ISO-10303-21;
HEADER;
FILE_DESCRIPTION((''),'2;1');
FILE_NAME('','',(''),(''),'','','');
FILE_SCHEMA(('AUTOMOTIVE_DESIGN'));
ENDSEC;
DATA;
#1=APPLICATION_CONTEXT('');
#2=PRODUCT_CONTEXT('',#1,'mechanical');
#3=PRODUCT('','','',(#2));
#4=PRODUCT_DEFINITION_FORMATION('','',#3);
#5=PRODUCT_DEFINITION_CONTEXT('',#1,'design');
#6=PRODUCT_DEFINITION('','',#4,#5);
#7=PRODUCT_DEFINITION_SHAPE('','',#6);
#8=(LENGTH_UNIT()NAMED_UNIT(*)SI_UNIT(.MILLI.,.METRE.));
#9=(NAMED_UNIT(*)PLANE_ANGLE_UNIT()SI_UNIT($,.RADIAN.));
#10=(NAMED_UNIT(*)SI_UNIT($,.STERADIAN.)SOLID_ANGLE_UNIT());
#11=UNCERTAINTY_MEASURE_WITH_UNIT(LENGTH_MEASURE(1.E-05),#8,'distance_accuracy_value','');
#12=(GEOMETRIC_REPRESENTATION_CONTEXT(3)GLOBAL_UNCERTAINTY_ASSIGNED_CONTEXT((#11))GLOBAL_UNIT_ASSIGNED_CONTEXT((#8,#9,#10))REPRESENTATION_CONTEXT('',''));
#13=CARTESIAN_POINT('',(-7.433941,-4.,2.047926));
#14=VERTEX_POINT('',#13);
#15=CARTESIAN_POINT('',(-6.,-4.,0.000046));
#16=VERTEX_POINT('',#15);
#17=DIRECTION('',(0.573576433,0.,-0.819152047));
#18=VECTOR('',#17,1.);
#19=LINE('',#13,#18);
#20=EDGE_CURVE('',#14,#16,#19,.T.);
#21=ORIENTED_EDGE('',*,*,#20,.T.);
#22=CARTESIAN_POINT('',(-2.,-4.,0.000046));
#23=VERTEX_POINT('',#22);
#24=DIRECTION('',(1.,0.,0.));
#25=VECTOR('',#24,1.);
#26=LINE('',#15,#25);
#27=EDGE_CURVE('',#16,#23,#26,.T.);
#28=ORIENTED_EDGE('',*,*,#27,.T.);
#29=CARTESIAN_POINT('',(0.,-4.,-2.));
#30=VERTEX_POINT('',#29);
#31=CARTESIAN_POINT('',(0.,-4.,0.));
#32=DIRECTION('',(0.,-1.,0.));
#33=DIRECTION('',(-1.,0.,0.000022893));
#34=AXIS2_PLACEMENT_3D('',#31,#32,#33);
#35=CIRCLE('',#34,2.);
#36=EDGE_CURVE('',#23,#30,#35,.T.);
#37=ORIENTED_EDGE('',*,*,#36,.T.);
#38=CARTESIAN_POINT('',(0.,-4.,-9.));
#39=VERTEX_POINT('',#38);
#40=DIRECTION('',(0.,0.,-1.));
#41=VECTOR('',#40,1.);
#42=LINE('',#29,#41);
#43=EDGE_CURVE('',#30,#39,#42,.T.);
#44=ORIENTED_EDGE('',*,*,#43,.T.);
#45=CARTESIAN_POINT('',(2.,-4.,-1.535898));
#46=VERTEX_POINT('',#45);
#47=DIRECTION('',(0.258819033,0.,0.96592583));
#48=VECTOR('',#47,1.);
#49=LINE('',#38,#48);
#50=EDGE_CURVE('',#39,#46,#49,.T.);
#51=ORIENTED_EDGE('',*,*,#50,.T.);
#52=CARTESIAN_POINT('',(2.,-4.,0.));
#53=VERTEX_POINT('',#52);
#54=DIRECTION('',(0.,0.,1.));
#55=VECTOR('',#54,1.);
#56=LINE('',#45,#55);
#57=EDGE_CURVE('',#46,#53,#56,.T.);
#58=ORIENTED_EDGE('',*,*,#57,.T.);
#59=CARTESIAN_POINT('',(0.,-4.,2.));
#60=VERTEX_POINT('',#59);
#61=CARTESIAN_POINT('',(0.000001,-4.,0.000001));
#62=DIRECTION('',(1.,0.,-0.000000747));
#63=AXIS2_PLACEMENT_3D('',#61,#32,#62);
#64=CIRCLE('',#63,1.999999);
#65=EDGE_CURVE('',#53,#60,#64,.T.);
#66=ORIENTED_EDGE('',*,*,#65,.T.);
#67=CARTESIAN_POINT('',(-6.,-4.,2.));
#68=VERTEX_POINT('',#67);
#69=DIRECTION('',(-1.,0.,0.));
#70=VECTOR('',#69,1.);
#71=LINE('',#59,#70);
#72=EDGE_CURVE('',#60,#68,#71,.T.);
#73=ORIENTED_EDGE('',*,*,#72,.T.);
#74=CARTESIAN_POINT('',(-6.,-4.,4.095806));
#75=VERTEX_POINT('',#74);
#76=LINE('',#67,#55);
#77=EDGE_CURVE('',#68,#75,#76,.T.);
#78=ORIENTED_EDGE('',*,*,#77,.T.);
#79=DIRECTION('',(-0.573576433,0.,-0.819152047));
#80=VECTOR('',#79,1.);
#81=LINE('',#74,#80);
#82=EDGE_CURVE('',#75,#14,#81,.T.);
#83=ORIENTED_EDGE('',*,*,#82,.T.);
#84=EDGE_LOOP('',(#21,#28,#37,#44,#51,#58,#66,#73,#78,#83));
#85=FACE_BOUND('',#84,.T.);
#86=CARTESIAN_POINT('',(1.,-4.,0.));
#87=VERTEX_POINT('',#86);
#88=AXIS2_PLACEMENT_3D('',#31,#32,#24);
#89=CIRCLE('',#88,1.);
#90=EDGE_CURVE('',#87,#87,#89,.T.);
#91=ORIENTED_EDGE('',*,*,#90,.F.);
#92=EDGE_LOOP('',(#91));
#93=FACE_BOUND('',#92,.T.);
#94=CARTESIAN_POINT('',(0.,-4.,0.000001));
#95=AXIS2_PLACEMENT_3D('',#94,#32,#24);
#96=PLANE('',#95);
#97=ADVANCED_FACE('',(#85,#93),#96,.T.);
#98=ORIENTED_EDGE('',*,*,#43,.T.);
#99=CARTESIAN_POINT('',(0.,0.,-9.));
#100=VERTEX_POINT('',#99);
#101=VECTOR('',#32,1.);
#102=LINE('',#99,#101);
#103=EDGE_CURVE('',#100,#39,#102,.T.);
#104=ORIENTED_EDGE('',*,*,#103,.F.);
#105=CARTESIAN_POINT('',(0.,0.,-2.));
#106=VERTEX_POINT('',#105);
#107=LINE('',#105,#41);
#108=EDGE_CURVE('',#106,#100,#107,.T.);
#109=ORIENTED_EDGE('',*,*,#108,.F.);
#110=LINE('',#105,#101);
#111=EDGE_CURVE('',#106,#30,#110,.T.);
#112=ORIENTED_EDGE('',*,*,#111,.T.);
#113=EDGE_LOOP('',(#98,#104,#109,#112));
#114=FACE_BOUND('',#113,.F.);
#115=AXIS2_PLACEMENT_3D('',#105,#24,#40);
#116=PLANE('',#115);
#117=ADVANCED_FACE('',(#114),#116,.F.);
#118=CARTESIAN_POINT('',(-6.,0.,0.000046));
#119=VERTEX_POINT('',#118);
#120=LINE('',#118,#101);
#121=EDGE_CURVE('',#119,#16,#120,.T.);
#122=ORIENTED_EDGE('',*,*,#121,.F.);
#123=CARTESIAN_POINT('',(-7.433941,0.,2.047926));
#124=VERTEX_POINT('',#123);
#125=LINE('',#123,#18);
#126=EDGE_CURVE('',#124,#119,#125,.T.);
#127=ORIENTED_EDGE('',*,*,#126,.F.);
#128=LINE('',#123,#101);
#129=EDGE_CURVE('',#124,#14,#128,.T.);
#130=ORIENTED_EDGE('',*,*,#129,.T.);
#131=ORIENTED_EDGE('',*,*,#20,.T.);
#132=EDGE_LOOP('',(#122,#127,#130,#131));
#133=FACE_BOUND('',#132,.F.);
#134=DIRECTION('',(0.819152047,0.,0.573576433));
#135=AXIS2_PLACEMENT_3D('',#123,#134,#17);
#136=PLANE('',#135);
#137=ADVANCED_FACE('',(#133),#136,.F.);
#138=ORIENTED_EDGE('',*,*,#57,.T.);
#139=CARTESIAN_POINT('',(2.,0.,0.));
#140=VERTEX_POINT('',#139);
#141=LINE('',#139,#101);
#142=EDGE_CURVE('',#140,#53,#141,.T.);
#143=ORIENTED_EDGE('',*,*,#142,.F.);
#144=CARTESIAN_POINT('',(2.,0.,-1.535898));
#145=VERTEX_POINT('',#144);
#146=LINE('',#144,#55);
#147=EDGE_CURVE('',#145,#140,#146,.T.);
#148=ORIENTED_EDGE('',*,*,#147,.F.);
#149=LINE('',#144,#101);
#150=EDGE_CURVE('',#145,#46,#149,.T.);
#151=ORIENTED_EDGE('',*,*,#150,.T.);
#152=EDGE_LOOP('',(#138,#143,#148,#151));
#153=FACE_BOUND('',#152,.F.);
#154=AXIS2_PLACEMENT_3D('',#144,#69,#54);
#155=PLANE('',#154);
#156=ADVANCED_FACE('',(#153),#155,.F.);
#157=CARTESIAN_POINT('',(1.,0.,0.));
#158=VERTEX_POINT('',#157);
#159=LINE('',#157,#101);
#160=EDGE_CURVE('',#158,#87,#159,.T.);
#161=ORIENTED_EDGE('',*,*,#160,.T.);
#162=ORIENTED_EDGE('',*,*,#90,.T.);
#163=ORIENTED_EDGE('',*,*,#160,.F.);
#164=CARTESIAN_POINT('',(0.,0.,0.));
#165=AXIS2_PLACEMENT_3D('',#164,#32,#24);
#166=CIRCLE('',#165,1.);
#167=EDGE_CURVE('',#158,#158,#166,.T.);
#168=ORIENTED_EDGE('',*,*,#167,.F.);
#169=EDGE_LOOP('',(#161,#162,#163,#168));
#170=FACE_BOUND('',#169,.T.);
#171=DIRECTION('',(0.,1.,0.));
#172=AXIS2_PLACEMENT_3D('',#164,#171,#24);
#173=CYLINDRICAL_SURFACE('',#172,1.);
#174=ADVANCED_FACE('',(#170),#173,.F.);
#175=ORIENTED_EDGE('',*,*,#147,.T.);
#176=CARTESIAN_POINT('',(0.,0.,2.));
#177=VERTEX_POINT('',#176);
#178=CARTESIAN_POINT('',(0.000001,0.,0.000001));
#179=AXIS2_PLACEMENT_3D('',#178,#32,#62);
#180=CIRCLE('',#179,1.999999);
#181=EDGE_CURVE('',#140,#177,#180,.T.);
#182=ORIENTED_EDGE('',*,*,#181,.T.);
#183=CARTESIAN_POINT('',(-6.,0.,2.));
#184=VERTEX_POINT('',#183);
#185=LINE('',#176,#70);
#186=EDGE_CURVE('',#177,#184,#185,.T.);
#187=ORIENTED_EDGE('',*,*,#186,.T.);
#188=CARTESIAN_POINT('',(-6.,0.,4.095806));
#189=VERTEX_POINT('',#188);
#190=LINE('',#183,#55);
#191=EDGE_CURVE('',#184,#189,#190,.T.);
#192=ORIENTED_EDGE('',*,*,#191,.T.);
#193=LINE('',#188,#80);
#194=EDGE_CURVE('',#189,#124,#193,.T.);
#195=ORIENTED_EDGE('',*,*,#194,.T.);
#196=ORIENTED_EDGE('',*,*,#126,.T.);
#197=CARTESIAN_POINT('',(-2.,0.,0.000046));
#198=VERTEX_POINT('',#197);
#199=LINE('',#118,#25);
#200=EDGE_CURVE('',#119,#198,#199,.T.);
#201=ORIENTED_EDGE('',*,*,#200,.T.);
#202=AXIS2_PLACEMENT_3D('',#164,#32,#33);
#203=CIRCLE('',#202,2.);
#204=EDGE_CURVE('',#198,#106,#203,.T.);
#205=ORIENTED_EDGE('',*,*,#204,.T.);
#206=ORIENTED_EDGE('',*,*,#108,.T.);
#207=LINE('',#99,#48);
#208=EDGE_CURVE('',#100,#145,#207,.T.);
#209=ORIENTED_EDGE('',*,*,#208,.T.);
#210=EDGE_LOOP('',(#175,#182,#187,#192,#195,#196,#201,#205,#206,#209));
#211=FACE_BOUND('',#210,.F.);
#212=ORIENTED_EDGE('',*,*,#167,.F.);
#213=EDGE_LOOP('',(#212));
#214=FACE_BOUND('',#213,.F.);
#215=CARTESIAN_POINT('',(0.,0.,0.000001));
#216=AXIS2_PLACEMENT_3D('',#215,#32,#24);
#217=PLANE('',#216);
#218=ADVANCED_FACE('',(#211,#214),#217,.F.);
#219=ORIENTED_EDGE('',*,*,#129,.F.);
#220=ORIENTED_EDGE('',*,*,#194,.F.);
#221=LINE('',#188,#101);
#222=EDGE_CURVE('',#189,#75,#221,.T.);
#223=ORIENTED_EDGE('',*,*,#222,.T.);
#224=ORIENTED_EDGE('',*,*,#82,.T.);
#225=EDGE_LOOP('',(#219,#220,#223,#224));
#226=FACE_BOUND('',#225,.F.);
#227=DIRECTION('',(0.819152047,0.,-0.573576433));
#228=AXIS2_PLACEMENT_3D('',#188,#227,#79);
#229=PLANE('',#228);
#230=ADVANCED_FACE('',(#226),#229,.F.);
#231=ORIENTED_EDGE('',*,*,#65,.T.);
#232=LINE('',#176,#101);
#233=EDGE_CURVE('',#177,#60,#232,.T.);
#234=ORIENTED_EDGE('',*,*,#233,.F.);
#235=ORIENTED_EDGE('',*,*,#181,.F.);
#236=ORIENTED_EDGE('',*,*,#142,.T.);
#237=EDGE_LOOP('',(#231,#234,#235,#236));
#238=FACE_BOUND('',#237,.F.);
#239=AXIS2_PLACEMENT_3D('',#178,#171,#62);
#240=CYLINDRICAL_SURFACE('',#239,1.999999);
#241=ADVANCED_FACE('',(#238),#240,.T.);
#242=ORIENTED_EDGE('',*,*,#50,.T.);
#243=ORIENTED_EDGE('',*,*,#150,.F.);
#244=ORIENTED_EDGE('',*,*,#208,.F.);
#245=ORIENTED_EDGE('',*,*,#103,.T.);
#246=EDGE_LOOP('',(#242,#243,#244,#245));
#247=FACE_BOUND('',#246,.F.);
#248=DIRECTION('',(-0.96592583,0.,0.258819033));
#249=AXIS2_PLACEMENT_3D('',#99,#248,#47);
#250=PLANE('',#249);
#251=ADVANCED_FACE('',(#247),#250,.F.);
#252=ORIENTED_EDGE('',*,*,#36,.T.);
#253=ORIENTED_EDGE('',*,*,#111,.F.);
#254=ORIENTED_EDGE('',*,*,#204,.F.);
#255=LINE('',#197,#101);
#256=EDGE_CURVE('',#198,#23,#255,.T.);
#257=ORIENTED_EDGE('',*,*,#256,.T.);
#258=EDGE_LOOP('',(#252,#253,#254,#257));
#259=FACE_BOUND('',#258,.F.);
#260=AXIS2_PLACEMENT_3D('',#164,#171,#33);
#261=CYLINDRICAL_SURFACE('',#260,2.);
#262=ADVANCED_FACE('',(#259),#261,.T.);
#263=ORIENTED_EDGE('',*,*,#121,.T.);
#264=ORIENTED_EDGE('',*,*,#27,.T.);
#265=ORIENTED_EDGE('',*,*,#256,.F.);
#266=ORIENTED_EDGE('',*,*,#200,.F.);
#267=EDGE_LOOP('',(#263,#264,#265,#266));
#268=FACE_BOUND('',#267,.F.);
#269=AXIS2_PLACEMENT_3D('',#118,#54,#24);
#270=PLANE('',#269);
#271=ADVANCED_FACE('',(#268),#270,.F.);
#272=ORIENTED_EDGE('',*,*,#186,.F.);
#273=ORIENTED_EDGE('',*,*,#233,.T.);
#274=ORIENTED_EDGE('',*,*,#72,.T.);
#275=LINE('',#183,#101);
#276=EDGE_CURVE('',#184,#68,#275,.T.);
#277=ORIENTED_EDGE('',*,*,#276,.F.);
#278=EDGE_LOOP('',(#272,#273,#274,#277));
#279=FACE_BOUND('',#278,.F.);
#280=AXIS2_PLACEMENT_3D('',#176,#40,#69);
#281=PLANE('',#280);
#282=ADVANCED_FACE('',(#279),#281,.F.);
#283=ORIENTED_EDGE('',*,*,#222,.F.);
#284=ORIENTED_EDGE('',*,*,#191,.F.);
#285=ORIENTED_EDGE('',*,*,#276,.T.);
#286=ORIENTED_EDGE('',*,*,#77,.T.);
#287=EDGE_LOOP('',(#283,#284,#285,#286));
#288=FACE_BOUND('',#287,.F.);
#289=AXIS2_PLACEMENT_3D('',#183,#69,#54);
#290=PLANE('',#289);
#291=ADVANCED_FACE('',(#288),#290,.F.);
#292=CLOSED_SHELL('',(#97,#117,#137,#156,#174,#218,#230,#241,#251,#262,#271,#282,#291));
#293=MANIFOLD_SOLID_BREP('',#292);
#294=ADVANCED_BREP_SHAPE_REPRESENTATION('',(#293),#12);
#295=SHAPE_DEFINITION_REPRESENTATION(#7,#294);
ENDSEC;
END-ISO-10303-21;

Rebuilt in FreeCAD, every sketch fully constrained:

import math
import FreeCAD as App
import Part
import Sketcher
Q = App.Units.Quantity

doc = App.newDocument("Part")
body = doc.addObject("PartDesign::Body", "Body")

# Sketch on XZ plane
sketch1 = doc.addObject("Sketcher::SketchObject", "Sketch")
body.addObject(sketch1)
sketch1.AttachmentSupport = (doc.XZ_Plane, [""])
sketch1.MapMode = "FlatFace"
sketch1.addGeometry([
    Part.ArcOfCircle(Part.Circle(App.Vector(0, 0, 0), App.Vector(0, 0, 1), 2), math.radians(180), math.radians(270)),  # 0
    Part.LineSegment(App.Vector(0, -2, 0), App.Vector(0, -9, 0)),  # 1
    Part.LineSegment(App.Vector(0, -9, 0), App.Vector(2, -1.5, 0)),  # 2
    Part.LineSegment(App.Vector(2, -1.5, 0), App.Vector(2, 0, 0)),  # 3
    Part.ArcOfCircle(Part.Circle(App.Vector(0, 0, 0), App.Vector(0, 0, 1), 2), math.radians(0), math.radians(90)),  # 4
    Part.LineSegment(App.Vector(0, 2, 0), App.Vector(-6, 2, 0)),  # 5
    Part.LineSegment(App.Vector(-6, 2, 0), App.Vector(-6, 4.1, 0)),  # 6
    Part.LineSegment(App.Vector(-6, 4.1, 0), App.Vector(-7.4, 2, 0)),  # 7
    Part.LineSegment(App.Vector(-7.4, 2, 0), App.Vector(-6, 0, 0)),  # 8
    Part.LineSegment(App.Vector(-6, 0, 0), App.Vector(-2, 0, 0)),  # 9
    Part.Circle(App.Vector(0, 0, 0), App.Vector(0, 0, 1), 1),  # 10
], False)
sketch1.addConstraint([
    Sketcher.Constraint("Coincident", 0, 2, 1, 1),
    Sketcher.Constraint("Coincident", 1, 2, 2, 1),
    Sketcher.Constraint("Coincident", 2, 2, 3, 1),
    Sketcher.Constraint("Tangent", 3, 2, 4, 1),
    Sketcher.Constraint("Tangent", 4, 2, 5, 1),
    Sketcher.Constraint("Coincident", 5, 2, 6, 1),
    Sketcher.Constraint("Coincident", 6, 2, 7, 1),
    Sketcher.Constraint("Coincident", 7, 2, 8, 1),
    Sketcher.Constraint("Coincident", 8, 2, 9, 1),
    Sketcher.Constraint("Coincident", 9, 2, 0, 1),
    Sketcher.Constraint("Vertical", 1),
    Sketcher.Constraint("Vertical", 3),
    Sketcher.Constraint("Horizontal", 5),
    Sketcher.Constraint("Vertical", 6),
    Sketcher.Constraint("Horizontal", 9),
    Sketcher.Constraint("Coincident", 0, 3, -1, 1),
    Sketcher.Constraint("Coincident", 4, 3, -1, 1),
    Sketcher.Constraint("Coincident", 10, 3, -1, 1),
    Sketcher.Constraint("Equal", 0, 4),
    Sketcher.Constraint("PointOnObject", 0, 2, -2),
    Sketcher.Constraint("Vertical", 6, 2, 8, 2),
    Sketcher.Constraint("Equal", 7, 8),
    Sketcher.Constraint("Diameter", 10, 2.0),
    Sketcher.Constraint("Radius", 0, 2.0),
    Sketcher.Constraint("DistanceX", 5, 2, 5, 1, 6.0),
    Sketcher.Constraint("DistanceY", 1, 2, 1, 1, 7.0),
    Sketcher.Constraint("Angle", 2, Q("75.000001 deg")),
    Sketcher.Constraint("Angle", 7, Q("-125 deg")),
    Sketcher.Constraint("Distance", 7, 2.5),
    Sketcher.Constraint("DistanceY", 6, 1, 6, 2, 2.095806),
])
pad1 = doc.addObject("PartDesign::Pad", "Pad")
body.addObject(pad1)
pad1.Profile = sketch1
pad1.Length = 4

doc.recompute()
